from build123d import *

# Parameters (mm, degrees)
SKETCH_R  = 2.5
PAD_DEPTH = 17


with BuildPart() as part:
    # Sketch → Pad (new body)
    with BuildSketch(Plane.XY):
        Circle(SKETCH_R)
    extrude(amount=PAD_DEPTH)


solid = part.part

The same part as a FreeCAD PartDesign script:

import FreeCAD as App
import Part
import Sketcher
from FreeCAD import Vector
Q = App.Units.Quantity

doc = App.newDocument("Part")
body = doc.addObject("PartDesign::Body", "Body")

# Sketch on XY plane
sketch1 = doc.addObject("Sketcher::SketchObject", "Sketch")
body.addObject(sketch1)
sketch1.AttachmentSupport = (doc.XY_Plane, [""])
sketch1.MapMode = "FlatFace"
sketch1.addGeometry(Part.Circle(Vector(0, 0, 0), Vector(0, 0, 1), 2.5), False)
sketch1.addConstraint(Sketcher.Constraint("Coincident", 0, 3, -1, 1))
sketch1.addConstraint(Sketcher.Constraint("Diameter", 0, Q("5 mm")))
pad1 = doc.addObject("PartDesign::Pad", "Pad")
body.addObject(pad1)
pad1.Profile = sketch1
pad1.Length = 17

doc.recompute()
